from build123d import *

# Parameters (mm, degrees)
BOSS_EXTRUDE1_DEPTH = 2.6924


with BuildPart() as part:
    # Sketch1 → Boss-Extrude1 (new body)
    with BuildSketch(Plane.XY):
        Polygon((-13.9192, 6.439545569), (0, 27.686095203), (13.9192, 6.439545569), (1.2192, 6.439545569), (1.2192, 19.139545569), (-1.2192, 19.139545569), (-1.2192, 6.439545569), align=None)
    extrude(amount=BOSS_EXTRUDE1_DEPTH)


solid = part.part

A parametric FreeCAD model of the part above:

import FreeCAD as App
import Part
import Sketcher
from FreeCAD import Vector
Q = App.Units.Quantity

doc = App.newDocument("Part")
body = doc.addObject("PartDesign::Body", "Body")

# Sketch on XY plane
sketch1 = body.newObject("Sketcher::SketchObject", "Sketch")
sketch1.AttachmentSupport = (doc.getObject("XY_Plane"), [""])
sketch1.MapMode = "FlatFace"
sketch1.addGeometry([
    Part.LineSegment(Vector(0, 27.7, 0), Vector(-13.9, 6.4, 0)),  # 0
    Part.LineSegment(Vector(-13.9, 6.4, 0), Vector(-1.2, 6.4, 0)),  # 1
    Part.LineSegment(Vector(-1.2, 6.4, 0), Vector(-1.2, 19.1, 0)),  # 2
    Part.LineSegment(Vector(-1.2, 19.1, 0), Vector(1.2, 19.1, 0)),  # 3
    Part.LineSegment(Vector(1.2, 19.1, 0), Vector(1.2, 6.4, 0)),  # 4
    Part.LineSegment(Vector(1.2, 6.4, 0), Vector(13.9, 6.4, 0)),  # 5
    Part.LineSegment(Vector(13.9, 6.4, 0), Vector(0, 27.7, 0)),  # 6
], False)
sketch1.addConstraint([
    Sketcher.Constraint("Coincident", 0, 2, 1, 1),
    Sketcher.Constraint("Coincident", 1, 2, 2, 1),
    Sketcher.Constraint("Coincident", 2, 2, 3, 1),
    Sketcher.Constraint("Coincident", 3, 2, 4, 1),
    Sketcher.Constraint("Coincident", 4, 2, 5, 1),
    Sketcher.Constraint("Coincident", 5, 2, 6, 1),
    Sketcher.Constraint("Coincident", 6, 2, 0, 1),
    Sketcher.Constraint("Horizontal", 1),
    Sketcher.Constraint("Vertical", 2),
    Sketcher.Constraint("Horizontal", 3),
    Sketcher.Constraint("Vertical", 4),
    Sketcher.Constraint("Horizontal", 5),
    Sketcher.Constraint("Symmetric", 1, 2, 4, 2, -2),
    Sketcher.Constraint("PointOnObject", 6, 2, -2),
    Sketcher.Constraint("Equal", 1, 5),
    Sketcher.Constraint("Equal", 5, 2),
    Sketcher.Constraint("Distance", 0, Q("1 in")),
    Sketcher.Constraint("DistanceX", 1, 1, 1, 2, Q("0.5 in")),
    Sketcher.Constraint("DistanceX", 3, 1, 3, 2, Q("0.096 in")),
    Sketcher.Constraint("DistanceY", -1, 1, 0, 2, 6.439546),
])
pad1 = body.newObject("PartDesign::Pad", "Pad")
pad1.Profile = sketch1
pad1.Length = Q("0.106 in")

doc.recompute()
